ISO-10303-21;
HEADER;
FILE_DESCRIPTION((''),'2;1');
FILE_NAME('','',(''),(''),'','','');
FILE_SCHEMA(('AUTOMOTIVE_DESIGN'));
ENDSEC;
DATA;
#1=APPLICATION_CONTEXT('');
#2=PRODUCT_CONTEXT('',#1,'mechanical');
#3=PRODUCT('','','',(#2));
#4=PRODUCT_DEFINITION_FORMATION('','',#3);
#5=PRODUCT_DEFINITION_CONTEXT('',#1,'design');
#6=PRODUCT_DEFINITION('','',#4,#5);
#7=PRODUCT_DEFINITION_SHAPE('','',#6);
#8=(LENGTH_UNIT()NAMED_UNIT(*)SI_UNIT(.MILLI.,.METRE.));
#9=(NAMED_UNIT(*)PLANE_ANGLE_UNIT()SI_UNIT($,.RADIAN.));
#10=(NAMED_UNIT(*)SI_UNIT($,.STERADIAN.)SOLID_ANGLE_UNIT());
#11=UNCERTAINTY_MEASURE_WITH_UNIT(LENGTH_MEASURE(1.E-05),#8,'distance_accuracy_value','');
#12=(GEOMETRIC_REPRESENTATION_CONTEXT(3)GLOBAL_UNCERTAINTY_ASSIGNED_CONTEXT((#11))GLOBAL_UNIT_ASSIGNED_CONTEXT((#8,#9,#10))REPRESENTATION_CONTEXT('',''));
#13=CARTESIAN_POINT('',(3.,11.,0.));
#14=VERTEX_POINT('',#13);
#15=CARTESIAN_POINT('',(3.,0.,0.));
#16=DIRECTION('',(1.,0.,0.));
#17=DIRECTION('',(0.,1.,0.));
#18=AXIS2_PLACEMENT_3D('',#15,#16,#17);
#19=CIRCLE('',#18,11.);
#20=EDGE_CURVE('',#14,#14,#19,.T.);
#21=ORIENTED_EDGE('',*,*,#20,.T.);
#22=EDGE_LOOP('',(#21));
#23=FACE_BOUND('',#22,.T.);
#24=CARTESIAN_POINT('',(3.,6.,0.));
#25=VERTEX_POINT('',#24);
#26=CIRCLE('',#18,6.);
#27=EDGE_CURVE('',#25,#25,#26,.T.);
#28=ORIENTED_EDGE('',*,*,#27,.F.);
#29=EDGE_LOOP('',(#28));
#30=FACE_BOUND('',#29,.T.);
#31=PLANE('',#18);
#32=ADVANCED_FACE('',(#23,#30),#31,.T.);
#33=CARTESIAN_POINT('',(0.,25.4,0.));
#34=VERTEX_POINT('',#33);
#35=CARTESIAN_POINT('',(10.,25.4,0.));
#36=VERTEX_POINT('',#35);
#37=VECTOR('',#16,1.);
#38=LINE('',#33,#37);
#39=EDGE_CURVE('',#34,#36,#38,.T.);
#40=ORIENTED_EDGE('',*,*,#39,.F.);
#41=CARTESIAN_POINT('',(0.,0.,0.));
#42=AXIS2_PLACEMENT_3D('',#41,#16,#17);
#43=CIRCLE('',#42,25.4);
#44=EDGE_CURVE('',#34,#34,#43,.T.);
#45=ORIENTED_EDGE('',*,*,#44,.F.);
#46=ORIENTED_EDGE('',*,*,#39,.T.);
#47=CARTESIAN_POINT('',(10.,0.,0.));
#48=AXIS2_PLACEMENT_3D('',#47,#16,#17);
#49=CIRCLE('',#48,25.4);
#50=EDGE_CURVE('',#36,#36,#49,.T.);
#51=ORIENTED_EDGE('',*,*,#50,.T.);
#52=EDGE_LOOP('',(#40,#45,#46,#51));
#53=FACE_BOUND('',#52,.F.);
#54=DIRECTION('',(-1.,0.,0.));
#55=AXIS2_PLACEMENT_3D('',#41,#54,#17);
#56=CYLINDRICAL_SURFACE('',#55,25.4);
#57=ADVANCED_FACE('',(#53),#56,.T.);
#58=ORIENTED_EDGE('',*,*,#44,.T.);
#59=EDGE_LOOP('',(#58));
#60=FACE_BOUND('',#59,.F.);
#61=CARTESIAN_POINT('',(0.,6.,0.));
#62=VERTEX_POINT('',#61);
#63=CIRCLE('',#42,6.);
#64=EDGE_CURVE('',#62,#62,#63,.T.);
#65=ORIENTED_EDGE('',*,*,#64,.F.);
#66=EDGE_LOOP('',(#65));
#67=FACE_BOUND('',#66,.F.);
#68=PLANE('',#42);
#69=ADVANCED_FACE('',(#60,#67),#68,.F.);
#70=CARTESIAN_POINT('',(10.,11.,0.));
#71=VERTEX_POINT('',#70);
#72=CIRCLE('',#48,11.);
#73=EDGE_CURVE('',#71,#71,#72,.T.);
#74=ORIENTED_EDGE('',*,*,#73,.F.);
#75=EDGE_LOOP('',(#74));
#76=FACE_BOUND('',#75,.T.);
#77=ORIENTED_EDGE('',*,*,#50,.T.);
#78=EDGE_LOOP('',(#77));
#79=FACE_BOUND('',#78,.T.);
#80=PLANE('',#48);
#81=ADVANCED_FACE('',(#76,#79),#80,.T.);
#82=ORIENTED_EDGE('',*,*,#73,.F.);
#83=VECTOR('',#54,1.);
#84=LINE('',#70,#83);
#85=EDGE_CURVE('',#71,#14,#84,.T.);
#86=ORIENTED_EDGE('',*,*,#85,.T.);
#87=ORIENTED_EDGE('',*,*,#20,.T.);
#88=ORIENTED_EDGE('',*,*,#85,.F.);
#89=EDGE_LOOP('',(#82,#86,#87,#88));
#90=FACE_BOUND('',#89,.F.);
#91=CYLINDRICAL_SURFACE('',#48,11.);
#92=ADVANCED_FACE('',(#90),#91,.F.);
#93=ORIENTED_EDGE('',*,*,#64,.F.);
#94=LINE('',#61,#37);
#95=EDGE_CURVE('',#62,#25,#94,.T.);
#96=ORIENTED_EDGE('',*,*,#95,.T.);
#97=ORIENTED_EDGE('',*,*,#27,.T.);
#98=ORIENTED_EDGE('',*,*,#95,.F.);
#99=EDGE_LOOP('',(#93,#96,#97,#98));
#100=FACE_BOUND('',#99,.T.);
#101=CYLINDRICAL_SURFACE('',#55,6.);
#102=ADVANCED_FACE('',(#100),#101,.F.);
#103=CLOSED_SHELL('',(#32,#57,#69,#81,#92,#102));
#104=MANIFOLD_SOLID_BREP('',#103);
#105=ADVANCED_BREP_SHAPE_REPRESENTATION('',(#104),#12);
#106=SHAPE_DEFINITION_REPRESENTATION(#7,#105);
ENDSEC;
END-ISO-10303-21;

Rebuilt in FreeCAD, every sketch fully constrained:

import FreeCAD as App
import Part
import Sketcher

V = App.Vector
Q = App.Units.Quantity

doc = App.newDocument("Part")
body = doc.addObject("PartDesign::Body", "Body")

sketch1 = doc.addObject("Sketcher::SketchObject", "Sketch")
body.addObject(sketch1)
sketch1.AttachmentSupport = (doc.YZ_Plane, [""])
sketch1.MapMode = "FlatFace"
sketch1.addGeometry(Part.Circle(V(0, 0, 0), V(0, 0, 1), 25), False)
sketch1.addGeometry(Part.Circle(V(0, 0, 0), V(0, 0, 1), 6), False)
sketch1.addConstraint(Sketcher.Constraint("Coincident", 0, 3, -1, 1))
sketch1.addConstraint(Sketcher.Constraint("Coincident", 1, 3, -1, 1))
sketch1.addConstraint(Sketcher.Constraint("Diameter", 1, Q("12 mm")))
sketch1.addConstraint(Sketcher.Constraint("Diameter", 0, Q("50.8 mm")))
pad1 = doc.addObject("PartDesign::Pad", "Pad")
body.addObject(pad1)
pad1.Profile = sketch1
pad1.Length = 10

sketch2 = doc.addObject("Sketcher::SketchObject", "Sketch001")
body.addObject(sketch2)
sketch2.AttachmentSupport = (doc.YZ_Plane, [""])
sketch2.MapMode = "FlatFace"
sketch2.AttachmentOffset = App.Placement(V(0, 0, 10), App.Rotation())
sketch2.addGeometry(Part.Circle(V(0, 0, 0), V(0, 0, 1), 11), False)
sketch2.addGeometry(Part.Circle(V(0, 0, 0), V(0, 0, 1), 6), False)
sketch2.addConstraint(Sketcher.Constraint("Coincident", 0, 3, -1, 1))
sketch2.addConstraint(Sketcher.Constraint("Coincident", 1, 3, -1, 1))
sketch2.addConstraint(Sketcher.Constraint("Diameter", 0, Q("22 mm")))
sketch2.addConstraint(Sketcher.Constraint("Diameter", 1, Q("12 mm")))
pocket1 = doc.addObject("PartDesign::Pocket", "Pocket")
body.addObject(pocket1)
pocket1.Profile = sketch2
pocket1.Length = 7

doc.recompute()
